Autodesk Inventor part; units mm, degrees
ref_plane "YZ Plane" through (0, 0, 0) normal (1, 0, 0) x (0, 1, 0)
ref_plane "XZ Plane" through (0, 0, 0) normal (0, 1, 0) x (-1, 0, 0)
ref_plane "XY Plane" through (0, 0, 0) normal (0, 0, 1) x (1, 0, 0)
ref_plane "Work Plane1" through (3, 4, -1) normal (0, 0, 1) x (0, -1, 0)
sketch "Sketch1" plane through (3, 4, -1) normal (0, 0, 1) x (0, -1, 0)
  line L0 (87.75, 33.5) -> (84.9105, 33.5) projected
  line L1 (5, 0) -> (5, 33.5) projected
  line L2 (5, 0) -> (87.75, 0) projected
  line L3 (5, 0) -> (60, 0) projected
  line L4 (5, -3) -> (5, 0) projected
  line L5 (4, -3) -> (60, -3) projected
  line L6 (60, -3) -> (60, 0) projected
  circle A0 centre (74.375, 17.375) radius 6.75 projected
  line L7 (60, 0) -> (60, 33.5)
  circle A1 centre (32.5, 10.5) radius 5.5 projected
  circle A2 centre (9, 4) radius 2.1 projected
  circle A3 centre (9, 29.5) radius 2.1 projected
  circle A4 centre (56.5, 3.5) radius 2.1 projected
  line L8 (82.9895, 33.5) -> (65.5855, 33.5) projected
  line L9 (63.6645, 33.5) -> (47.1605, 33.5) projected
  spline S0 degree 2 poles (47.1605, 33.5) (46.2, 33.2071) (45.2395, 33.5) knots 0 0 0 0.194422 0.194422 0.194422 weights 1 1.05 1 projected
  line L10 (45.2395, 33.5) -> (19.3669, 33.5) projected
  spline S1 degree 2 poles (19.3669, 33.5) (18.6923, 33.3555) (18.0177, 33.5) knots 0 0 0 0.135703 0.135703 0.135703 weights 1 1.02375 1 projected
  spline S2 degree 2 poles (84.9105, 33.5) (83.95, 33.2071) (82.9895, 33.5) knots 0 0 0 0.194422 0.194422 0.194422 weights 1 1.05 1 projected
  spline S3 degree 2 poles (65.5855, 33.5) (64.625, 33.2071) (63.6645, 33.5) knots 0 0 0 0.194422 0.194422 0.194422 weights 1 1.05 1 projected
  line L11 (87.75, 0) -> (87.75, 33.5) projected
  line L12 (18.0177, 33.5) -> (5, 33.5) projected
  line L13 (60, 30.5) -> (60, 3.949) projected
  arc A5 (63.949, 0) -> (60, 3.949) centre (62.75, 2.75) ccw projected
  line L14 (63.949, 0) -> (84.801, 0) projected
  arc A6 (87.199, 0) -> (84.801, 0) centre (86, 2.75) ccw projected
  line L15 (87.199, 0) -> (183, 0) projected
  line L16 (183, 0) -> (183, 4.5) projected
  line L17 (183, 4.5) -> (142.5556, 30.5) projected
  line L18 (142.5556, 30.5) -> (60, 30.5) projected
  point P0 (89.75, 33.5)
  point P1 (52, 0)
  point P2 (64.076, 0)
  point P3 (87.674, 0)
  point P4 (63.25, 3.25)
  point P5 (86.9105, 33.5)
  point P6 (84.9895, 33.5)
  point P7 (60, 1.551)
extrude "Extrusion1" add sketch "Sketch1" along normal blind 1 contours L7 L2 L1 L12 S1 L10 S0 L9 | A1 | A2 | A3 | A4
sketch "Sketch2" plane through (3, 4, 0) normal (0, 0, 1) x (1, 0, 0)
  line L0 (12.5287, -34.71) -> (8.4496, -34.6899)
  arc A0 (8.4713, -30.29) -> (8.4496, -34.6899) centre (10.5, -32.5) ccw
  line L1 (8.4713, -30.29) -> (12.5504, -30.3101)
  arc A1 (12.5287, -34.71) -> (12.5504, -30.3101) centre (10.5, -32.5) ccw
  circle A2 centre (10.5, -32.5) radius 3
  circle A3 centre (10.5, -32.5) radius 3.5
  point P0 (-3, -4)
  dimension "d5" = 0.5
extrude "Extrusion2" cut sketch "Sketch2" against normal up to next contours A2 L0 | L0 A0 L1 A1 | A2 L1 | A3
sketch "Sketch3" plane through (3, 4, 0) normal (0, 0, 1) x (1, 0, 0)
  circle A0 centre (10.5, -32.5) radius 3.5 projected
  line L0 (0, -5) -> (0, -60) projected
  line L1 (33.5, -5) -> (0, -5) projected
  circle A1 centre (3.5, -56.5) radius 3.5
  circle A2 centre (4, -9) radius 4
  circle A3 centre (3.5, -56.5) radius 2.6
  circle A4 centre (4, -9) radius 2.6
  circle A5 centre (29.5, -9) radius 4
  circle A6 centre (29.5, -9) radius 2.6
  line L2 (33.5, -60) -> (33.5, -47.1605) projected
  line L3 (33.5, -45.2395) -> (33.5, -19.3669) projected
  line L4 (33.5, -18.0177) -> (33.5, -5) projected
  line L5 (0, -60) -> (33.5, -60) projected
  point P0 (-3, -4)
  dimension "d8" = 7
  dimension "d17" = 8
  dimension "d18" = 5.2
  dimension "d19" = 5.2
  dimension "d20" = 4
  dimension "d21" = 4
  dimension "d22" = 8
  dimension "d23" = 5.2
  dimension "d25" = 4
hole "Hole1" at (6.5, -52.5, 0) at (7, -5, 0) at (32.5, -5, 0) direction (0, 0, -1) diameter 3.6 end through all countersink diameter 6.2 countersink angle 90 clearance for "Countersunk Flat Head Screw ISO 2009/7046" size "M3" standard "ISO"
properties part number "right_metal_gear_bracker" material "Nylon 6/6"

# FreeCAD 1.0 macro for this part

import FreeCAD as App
import Part
import Sketcher

V = App.Vector

doc = App.newDocument("Part")
params = doc.addObject("Spreadsheet::Sheet", "Params")
for row, (alias, value) in enumerate([
    ("sketch1_height", "55 mm"),
    ("sketch1_width", "33.5 mm"),
    ("pad1_length", "1 mm"),
    ("sketch2_diameter", "7 mm"),
    ("sketch3_diameter", "3.6 mm"),
    ("hole_diameter", "3.6 mm"),
    ("hole_csink_diameter", "6.2 mm"),
], start=1):
    params.set(f"A{row}", alias)
    params.set(f"B{row}", "=" + value)
    params.setAlias(f"B{row}", alias)

body = doc.addObject("PartDesign::Body", "Body")

sketch1 = body.newObject("Sketcher::SketchObject", "Sketch")
sketch1.AttachmentSupport = (doc.getObject("XY_Plane"), [""])
sketch1.MapMode = "FlatFace"
sketch1.AttachmentOffset = App.Placement(V(0, 0, -1), App.Rotation())
sketch1.addGeometry([
    Part.LineSegment(V(36.5, -56, 0), V(36.5, -43.1605, 0)),
    Part.BSplineCurve([V(36.5, -43.1605, 0), V(36.2071, -42.2, 0), V(36.5, -41.2395, 0)], [3, 3], [0, 0.194422], False, 2, [1, 1.05, 1], False),
    Part.LineSegment(V(36.5, -41.2395, 0), V(36.5, -15.3669, 0)),
    Part.BSplineCurve([V(36.5, -15.3669, 0), V(36.3555, -14.6923, 0), V(36.5, -14.0177, 0)], [3, 3], [0, 0.135703], False, 2, [1, 1.02375, 1], False),
    Part.LineSegment(V(36.5, -14.0177, 0), V(36.5, -1, 0)),
    Part.LineSegment(V(36.5, -1, 0), V(3, -1, 0)),
    Part.LineSegment(V(3, -1, 0), V(3, -56, 0)),
    Part.LineSegment(V(3, -56, 0), V(36.5, -56, 0)),
], False)
sketch1.addConstraint([
    Sketcher.Constraint("Block", 1),
    Sketcher.Constraint("Block", 3),
    Sketcher.Constraint("Coincident", 0, 2, 1, 1),
    Sketcher.Constraint("Coincident", 1, 2, 2, 1),
    Sketcher.Constraint("Coincident", 2, 2, 3, 1),
    Sketcher.Constraint("Coincident", 3, 2, 4, 1),
    Sketcher.Constraint("Coincident", 4, 2, 5, 1),
    Sketcher.Constraint("Coincident", 5, 2, 6, 1),
    Sketcher.Constraint("Coincident", 6, 2, 7, 1),
    Sketcher.Constraint("Coincident", 7, 2, 0, 1),
    Sketcher.Constraint("Vertical", 0),
    Sketcher.Constraint("Vertical", 4),
    Sketcher.Constraint("Horizontal", 5),
    Sketcher.Constraint("Vertical", 6),
    Sketcher.Constraint("Horizontal", 7),
    Sketcher.Constraint("DistanceY", 6, 2, 6, 1, 55.0),
    Sketcher.Constraint("DistanceX", 5, 2, 5, 1, 33.5),
    Sketcher.Constraint("DistanceY", 4, 2, -1, 1, 1.0),
])
sketch1.setExpression("Constraints[15]", "Params.sketch1_height")
sketch1.setExpression("Constraints[16]", "Params.sketch1_width")
pad1 = body.newObject("PartDesign::Pad", "Pad")
pad1.Profile = sketch1
pad1.setExpression("Length", "Params.pad1_length")

sketch2 = body.newObject("Sketcher::SketchObject", "Sketch001")
sketch2.AttachmentSupport = (doc.getObject("XY_Plane"), [""])
sketch2.MapMode = "FlatFace"
sketch2.addGeometry(Part.Circle(V(13.5, -28.5, 0), V(0, 0, 1), 3.5), False)
sketch2.addConstraint([
    Sketcher.Constraint("Diameter", 0, 7.0),
    Sketcher.Constraint("DistanceX", -1, 1, 0, 3, 13.5),
    Sketcher.Constraint("DistanceY", 0, 3, -1, 1, 28.5),
])
sketch2.setExpression("Constraints[0]", "Params.sketch2_diameter")
pocket1 = body.newObject("PartDesign::Pocket", "Pocket")
pocket1.Profile = sketch2
pocket1.Type = "UpToFirst"

sketch3 = body.newObject("Sketcher::SketchObject", "Sketch002")
sketch3.AttachmentSupport = (doc.getObject("XY_Plane"), [""])
sketch3.MapMode = "FlatFace"
sketch3.addGeometry([
    Part.Circle(V(6.5, -52.5, 0), V(0, 0, 1), 1.8),
    Part.Circle(V(7, -5, 0), V(0, 0, 1), 1.8),
    Part.Circle(V(32.5, -5, 0), V(0, 0, 1), 1.8),
], False)
sketch3.addConstraint([
    Sketcher.Constraint("Equal", 0, 1),
    Sketcher.Constraint("Equal", 1, 2),
    Sketcher.Constraint("Horizontal", 1, 3, 2, 3),
    Sketcher.Constraint("Diameter", 0, 3.6),
    Sketcher.Constraint("DistanceX", -1, 1, 1, 3, 7.0),
    Sketcher.Constraint("DistanceY", 1, 3, -1, 1, 5.0),
    Sketcher.Constraint("DistanceX", 0, 3, 2, 3, 26.0),
    Sketcher.Constraint("DistanceX", -1, 1, 0, 3, 6.5),
    Sketcher.Constraint("DistanceY", 0, 3, -1, 1, 52.5),
])
sketch3.setExpression("Constraints[3]", "Params.sketch3_diameter")
doc.recompute()
hole = body.newObject("PartDesign::Hole", "Hole")
hole.Profile = sketch3
hole.ThreadType = "None"
hole.setExpression("Diameter", "Params.hole_diameter")
hole.DepthType = "ThroughAll"
hole.HoleCutType = "Countersink"
hole.setExpression("HoleCutDiameter", "Params.hole_csink_diameter")
hole.HoleCutCountersinkAngle = 90

doc.recompute()
